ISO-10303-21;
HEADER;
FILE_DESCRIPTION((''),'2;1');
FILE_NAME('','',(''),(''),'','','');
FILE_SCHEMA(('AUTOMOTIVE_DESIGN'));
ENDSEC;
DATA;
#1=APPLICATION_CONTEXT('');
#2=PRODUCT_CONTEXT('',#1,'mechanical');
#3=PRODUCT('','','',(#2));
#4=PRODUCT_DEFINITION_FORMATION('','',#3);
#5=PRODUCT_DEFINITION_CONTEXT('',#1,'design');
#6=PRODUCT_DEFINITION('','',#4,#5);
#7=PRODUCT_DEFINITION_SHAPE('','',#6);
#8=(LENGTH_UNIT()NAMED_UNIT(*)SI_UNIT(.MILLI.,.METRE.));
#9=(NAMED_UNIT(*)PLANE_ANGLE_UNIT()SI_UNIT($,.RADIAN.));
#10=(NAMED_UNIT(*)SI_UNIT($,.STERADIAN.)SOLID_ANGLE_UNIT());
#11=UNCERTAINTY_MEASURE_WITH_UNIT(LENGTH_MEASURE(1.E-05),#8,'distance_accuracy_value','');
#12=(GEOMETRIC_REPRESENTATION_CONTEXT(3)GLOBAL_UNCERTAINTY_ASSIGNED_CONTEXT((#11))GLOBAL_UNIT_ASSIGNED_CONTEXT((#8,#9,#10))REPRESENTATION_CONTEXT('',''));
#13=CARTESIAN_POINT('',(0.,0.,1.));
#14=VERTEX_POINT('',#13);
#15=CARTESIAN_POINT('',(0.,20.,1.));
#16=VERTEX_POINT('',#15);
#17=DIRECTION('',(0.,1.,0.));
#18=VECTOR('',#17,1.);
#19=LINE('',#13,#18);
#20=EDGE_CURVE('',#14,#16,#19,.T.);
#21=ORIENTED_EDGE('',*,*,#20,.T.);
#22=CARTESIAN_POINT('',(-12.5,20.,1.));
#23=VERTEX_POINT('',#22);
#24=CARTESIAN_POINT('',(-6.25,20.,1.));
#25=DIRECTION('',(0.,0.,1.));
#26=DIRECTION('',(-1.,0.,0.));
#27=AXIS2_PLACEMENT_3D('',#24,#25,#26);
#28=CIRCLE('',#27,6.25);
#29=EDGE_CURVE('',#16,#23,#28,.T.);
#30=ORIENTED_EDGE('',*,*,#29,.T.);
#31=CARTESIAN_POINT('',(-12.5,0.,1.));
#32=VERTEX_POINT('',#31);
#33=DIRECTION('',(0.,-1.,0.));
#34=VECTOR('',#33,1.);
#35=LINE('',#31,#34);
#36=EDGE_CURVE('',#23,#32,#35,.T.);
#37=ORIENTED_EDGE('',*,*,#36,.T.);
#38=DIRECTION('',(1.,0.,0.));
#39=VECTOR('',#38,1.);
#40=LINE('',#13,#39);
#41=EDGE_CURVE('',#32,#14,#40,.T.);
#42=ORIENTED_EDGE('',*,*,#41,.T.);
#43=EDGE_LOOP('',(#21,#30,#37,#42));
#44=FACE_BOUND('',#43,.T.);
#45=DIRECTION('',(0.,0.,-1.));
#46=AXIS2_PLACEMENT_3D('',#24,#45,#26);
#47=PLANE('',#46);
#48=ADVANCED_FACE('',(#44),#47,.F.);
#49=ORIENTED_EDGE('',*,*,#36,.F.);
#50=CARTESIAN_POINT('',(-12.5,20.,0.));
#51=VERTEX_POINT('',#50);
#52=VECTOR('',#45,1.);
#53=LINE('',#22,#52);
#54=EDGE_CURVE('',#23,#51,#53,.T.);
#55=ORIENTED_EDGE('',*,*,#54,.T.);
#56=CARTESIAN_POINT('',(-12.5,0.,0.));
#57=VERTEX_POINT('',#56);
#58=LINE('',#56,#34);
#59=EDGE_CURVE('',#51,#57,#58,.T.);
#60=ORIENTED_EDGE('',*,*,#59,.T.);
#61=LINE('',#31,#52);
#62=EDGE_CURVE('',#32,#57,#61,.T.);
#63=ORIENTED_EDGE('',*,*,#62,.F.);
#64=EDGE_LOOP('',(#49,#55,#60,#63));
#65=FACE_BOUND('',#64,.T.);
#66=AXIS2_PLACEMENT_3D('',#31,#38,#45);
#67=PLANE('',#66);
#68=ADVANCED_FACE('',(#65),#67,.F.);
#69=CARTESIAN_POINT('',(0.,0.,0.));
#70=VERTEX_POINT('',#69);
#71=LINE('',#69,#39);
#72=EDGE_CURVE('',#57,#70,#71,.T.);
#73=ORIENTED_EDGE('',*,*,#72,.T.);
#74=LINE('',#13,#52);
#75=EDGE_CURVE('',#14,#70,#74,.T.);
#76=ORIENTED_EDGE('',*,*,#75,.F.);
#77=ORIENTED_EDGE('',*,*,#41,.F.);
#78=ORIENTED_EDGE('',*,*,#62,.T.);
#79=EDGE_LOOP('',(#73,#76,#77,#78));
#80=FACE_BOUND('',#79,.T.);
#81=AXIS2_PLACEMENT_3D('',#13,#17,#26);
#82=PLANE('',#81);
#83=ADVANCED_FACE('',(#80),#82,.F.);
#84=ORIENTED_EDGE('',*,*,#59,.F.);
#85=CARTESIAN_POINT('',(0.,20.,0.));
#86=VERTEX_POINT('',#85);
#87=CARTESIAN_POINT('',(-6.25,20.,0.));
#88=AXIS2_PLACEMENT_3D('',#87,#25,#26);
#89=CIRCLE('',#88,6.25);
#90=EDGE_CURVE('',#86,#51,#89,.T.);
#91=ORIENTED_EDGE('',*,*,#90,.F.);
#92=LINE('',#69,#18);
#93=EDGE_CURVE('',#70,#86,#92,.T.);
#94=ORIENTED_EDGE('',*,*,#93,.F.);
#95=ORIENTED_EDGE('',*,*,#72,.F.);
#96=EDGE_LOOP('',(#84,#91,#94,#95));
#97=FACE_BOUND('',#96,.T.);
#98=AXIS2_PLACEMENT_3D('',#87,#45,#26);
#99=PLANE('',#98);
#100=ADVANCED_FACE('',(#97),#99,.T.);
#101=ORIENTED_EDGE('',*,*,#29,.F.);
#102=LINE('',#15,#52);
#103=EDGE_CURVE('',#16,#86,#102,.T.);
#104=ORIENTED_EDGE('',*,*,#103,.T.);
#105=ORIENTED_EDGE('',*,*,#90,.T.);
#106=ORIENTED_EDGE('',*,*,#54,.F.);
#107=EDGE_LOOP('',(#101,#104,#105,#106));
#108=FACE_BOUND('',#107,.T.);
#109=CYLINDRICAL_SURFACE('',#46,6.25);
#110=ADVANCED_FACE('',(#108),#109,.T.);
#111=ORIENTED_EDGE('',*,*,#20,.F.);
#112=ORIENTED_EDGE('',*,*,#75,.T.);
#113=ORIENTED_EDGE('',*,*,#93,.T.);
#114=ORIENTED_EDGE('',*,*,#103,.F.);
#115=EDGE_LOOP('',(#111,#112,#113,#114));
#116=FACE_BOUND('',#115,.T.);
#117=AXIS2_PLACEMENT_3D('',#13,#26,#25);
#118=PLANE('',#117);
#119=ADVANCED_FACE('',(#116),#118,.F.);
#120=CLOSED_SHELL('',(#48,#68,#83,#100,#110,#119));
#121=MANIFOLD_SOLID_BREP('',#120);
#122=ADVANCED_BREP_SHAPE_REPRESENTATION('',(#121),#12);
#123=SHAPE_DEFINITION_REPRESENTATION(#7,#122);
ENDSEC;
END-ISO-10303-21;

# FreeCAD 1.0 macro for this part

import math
import FreeCAD as App
import Part
import Sketcher

V = App.Vector

doc = App.newDocument("Part")
body = doc.addObject("PartDesign::Body", "Body")

# Sketch on XY plane
sketch1 = body.newObject("Sketcher::SketchObject", "Sketch")
sketch1.AttachmentSupport = (doc.getObject("XY_Plane"), [""])
sketch1.MapMode = "FlatFace"
sketch1.addGeometry([
    Part.LineSegment(V(-12, 0, 0), V(0, 0, 0)),
    Part.LineSegment(V(0, 0, 0), V(0, 20, 0)),
    Part.ArcOfCircle(Part.Circle(V(-6, 20, 0), V(0, 0, 1), 6), math.radians(0), math.radians(180)),
    Part.LineSegment(V(-12, 20, 0), V(-12, 0, 0)),
], False)
sketch1.addConstraint([
    Sketcher.Constraint("Coincident", 0, 2, 1, 1),
    Sketcher.Constraint("Tangent", 1, 2, 2, 1),
    Sketcher.Constraint("Tangent", 2, 2, 3, 1),
    Sketcher.Constraint("Coincident", 3, 2, 0, 1),
    Sketcher.Constraint("Horizontal", 0),
    Sketcher.Constraint("Vertical", 1),
    Sketcher.Constraint("Vertical", 3),
    Sketcher.Constraint("Coincident", 0, 2, -1, 1),
    Sketcher.Constraint("DistanceY", 1, 1, 1, 2, 20.0),
    Sketcher.Constraint("Radius", 2, 6.25),
])
pad1 = body.newObject("PartDesign::Pad", "Pad")
pad1.Profile = sketch1
pad1.Length = 1

doc.recompute()
